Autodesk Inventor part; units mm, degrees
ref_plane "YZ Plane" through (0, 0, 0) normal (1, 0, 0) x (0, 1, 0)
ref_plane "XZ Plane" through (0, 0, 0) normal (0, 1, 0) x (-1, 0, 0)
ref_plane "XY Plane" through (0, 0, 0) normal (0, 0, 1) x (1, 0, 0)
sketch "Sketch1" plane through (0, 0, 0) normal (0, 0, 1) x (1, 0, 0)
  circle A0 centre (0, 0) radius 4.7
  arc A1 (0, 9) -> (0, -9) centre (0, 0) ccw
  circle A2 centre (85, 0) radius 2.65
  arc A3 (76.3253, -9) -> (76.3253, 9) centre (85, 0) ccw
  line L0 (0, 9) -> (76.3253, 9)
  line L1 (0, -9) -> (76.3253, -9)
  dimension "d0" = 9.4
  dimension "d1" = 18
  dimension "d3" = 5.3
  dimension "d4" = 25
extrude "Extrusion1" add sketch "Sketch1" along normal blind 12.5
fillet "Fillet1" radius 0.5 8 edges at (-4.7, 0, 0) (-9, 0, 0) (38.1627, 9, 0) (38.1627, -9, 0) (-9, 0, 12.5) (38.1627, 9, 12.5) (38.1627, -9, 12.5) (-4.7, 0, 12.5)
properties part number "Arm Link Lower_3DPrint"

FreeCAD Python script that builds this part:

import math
import FreeCAD as App
import Part
import Sketcher


def edges_at(feature, points):
    """Names of the edges that pass closest to the given points."""
    edges = feature.Shape.Edges
    near = lambda p: min(range(len(edges)), key=lambda i: edges[i].distToShape(Part.Vertex(*p))[0])
    return sorted({f"Edge{near(p) + 1}" for p in points})

doc = App.newDocument("Part")
params = doc.addObject("Spreadsheet::Sheet", "Params")
for row, (alias, value) in enumerate([
    ("sketch1_radius", "9 mm"),
    ("sketch1_diameter", "9.4 mm"),
    ("sketch1_diameter2", "5.3 mm"),
    ("sketch1_radius2", "12.5 mm"),
    ("pad1_length", "12.5 mm"),
    ("fillet_radius", "0.5 mm"),
], start=1):
    params.set(f"A{row}", alias)
    params.set(f"B{row}", "=" + value)
    params.setAlias(f"B{row}", alias)

body = doc.addObject("PartDesign::Body", "Body")

# Sketch on XY plane
sketch1 = body.newObject("Sketcher::SketchObject", "Sketch")
sketch1.AttachmentSupport = (doc.getObject("XY_Plane"), [""])
sketch1.MapMode = "FlatFace"
sketch1.addGeometry([
    Part.LineSegment(App.Vector(76.3, 9, 0), App.Vector(0, 9, 0)),  # 0
    Part.ArcOfCircle(Part.Circle(App.Vector(0, 0, 0), App.Vector(0, 0, 1), 9), math.radians(90), math.radians(270)),  # 1
    Part.LineSegment(App.Vector(0, -9, 0), App.Vector(76.3, -9, 0)),  # 2
    Part.ArcOfCircle(Part.Circle(App.Vector(85, 0, 0), App.Vector(0, 0, 1), 12.5), math.radians(-134), math.radians(134)),  # 3
    Part.Circle(App.Vector(0, 0, 0), App.Vector(0, 0, 1), 4.7),  # 4
    Part.Circle(App.Vector(85, 0, 0), App.Vector(0, 0, 1), 2.6),  # 5
], False)
sketch1.addConstraint([
    Sketcher.Constraint("Tangent", 0, 2, 1, 1),
    Sketcher.Constraint("Tangent", 1, 2, 2, 1),
    Sketcher.Constraint("Coincident", 2, 2, 3, 1),
    Sketcher.Constraint("Coincident", 3, 2, 0, 1),
    Sketcher.Constraint("Horizontal", 0),
    Sketcher.Constraint("Horizontal", 2),
    Sketcher.Constraint("Coincident", 1, 3, -1, 1),
    Sketcher.Constraint("Coincident", 4, 3, -1, 1),
    Sketcher.Constraint("Coincident", 5, 3, 3, 3),
    Sketcher.Constraint("PointOnObject", 3, 3, -1),
    Sketcher.Constraint("Radius", 1, 9.0),
    Sketcher.Constraint("Diameter", 4, 9.4),
    Sketcher.Constraint("Diameter", 5, 5.3),
    Sketcher.Constraint("Radius", 3, 12.5),
    Sketcher.Constraint("DistanceX", -1, 1, 3, 3, 85.0),
])
sketch1.setExpression("Constraints[10]", "Params.sketch1_radius")
sketch1.setExpression("Constraints[11]", "Params.sketch1_diameter")
sketch1.setExpression("Constraints[12]", "Params.sketch1_diameter2")
sketch1.setExpression("Constraints[13]", "Params.sketch1_radius2")
pad1 = body.newObject("PartDesign::Pad", "Pad")
pad1.Profile = sketch1
pad1.setExpression("Length", "Params.pad1_length")
doc.recompute()

fillet = body.newObject("PartDesign::Fillet", "Fillet")
fillet.Base = (pad1, edges_at(pad1, [
    (-4.7, 0, 0),
    (-9, 0, 0),
    (38.163, 9, 0),
    (38.163, -9, 0),
    (-9, 0, 12.5),
    (38.163, 9, 12.5),
    (38.163, -9, 12.5),
    (-4.7, 0, 12.5),
]))
fillet.setExpression("Radius", "Params.fillet_radius")

doc.recompute()
